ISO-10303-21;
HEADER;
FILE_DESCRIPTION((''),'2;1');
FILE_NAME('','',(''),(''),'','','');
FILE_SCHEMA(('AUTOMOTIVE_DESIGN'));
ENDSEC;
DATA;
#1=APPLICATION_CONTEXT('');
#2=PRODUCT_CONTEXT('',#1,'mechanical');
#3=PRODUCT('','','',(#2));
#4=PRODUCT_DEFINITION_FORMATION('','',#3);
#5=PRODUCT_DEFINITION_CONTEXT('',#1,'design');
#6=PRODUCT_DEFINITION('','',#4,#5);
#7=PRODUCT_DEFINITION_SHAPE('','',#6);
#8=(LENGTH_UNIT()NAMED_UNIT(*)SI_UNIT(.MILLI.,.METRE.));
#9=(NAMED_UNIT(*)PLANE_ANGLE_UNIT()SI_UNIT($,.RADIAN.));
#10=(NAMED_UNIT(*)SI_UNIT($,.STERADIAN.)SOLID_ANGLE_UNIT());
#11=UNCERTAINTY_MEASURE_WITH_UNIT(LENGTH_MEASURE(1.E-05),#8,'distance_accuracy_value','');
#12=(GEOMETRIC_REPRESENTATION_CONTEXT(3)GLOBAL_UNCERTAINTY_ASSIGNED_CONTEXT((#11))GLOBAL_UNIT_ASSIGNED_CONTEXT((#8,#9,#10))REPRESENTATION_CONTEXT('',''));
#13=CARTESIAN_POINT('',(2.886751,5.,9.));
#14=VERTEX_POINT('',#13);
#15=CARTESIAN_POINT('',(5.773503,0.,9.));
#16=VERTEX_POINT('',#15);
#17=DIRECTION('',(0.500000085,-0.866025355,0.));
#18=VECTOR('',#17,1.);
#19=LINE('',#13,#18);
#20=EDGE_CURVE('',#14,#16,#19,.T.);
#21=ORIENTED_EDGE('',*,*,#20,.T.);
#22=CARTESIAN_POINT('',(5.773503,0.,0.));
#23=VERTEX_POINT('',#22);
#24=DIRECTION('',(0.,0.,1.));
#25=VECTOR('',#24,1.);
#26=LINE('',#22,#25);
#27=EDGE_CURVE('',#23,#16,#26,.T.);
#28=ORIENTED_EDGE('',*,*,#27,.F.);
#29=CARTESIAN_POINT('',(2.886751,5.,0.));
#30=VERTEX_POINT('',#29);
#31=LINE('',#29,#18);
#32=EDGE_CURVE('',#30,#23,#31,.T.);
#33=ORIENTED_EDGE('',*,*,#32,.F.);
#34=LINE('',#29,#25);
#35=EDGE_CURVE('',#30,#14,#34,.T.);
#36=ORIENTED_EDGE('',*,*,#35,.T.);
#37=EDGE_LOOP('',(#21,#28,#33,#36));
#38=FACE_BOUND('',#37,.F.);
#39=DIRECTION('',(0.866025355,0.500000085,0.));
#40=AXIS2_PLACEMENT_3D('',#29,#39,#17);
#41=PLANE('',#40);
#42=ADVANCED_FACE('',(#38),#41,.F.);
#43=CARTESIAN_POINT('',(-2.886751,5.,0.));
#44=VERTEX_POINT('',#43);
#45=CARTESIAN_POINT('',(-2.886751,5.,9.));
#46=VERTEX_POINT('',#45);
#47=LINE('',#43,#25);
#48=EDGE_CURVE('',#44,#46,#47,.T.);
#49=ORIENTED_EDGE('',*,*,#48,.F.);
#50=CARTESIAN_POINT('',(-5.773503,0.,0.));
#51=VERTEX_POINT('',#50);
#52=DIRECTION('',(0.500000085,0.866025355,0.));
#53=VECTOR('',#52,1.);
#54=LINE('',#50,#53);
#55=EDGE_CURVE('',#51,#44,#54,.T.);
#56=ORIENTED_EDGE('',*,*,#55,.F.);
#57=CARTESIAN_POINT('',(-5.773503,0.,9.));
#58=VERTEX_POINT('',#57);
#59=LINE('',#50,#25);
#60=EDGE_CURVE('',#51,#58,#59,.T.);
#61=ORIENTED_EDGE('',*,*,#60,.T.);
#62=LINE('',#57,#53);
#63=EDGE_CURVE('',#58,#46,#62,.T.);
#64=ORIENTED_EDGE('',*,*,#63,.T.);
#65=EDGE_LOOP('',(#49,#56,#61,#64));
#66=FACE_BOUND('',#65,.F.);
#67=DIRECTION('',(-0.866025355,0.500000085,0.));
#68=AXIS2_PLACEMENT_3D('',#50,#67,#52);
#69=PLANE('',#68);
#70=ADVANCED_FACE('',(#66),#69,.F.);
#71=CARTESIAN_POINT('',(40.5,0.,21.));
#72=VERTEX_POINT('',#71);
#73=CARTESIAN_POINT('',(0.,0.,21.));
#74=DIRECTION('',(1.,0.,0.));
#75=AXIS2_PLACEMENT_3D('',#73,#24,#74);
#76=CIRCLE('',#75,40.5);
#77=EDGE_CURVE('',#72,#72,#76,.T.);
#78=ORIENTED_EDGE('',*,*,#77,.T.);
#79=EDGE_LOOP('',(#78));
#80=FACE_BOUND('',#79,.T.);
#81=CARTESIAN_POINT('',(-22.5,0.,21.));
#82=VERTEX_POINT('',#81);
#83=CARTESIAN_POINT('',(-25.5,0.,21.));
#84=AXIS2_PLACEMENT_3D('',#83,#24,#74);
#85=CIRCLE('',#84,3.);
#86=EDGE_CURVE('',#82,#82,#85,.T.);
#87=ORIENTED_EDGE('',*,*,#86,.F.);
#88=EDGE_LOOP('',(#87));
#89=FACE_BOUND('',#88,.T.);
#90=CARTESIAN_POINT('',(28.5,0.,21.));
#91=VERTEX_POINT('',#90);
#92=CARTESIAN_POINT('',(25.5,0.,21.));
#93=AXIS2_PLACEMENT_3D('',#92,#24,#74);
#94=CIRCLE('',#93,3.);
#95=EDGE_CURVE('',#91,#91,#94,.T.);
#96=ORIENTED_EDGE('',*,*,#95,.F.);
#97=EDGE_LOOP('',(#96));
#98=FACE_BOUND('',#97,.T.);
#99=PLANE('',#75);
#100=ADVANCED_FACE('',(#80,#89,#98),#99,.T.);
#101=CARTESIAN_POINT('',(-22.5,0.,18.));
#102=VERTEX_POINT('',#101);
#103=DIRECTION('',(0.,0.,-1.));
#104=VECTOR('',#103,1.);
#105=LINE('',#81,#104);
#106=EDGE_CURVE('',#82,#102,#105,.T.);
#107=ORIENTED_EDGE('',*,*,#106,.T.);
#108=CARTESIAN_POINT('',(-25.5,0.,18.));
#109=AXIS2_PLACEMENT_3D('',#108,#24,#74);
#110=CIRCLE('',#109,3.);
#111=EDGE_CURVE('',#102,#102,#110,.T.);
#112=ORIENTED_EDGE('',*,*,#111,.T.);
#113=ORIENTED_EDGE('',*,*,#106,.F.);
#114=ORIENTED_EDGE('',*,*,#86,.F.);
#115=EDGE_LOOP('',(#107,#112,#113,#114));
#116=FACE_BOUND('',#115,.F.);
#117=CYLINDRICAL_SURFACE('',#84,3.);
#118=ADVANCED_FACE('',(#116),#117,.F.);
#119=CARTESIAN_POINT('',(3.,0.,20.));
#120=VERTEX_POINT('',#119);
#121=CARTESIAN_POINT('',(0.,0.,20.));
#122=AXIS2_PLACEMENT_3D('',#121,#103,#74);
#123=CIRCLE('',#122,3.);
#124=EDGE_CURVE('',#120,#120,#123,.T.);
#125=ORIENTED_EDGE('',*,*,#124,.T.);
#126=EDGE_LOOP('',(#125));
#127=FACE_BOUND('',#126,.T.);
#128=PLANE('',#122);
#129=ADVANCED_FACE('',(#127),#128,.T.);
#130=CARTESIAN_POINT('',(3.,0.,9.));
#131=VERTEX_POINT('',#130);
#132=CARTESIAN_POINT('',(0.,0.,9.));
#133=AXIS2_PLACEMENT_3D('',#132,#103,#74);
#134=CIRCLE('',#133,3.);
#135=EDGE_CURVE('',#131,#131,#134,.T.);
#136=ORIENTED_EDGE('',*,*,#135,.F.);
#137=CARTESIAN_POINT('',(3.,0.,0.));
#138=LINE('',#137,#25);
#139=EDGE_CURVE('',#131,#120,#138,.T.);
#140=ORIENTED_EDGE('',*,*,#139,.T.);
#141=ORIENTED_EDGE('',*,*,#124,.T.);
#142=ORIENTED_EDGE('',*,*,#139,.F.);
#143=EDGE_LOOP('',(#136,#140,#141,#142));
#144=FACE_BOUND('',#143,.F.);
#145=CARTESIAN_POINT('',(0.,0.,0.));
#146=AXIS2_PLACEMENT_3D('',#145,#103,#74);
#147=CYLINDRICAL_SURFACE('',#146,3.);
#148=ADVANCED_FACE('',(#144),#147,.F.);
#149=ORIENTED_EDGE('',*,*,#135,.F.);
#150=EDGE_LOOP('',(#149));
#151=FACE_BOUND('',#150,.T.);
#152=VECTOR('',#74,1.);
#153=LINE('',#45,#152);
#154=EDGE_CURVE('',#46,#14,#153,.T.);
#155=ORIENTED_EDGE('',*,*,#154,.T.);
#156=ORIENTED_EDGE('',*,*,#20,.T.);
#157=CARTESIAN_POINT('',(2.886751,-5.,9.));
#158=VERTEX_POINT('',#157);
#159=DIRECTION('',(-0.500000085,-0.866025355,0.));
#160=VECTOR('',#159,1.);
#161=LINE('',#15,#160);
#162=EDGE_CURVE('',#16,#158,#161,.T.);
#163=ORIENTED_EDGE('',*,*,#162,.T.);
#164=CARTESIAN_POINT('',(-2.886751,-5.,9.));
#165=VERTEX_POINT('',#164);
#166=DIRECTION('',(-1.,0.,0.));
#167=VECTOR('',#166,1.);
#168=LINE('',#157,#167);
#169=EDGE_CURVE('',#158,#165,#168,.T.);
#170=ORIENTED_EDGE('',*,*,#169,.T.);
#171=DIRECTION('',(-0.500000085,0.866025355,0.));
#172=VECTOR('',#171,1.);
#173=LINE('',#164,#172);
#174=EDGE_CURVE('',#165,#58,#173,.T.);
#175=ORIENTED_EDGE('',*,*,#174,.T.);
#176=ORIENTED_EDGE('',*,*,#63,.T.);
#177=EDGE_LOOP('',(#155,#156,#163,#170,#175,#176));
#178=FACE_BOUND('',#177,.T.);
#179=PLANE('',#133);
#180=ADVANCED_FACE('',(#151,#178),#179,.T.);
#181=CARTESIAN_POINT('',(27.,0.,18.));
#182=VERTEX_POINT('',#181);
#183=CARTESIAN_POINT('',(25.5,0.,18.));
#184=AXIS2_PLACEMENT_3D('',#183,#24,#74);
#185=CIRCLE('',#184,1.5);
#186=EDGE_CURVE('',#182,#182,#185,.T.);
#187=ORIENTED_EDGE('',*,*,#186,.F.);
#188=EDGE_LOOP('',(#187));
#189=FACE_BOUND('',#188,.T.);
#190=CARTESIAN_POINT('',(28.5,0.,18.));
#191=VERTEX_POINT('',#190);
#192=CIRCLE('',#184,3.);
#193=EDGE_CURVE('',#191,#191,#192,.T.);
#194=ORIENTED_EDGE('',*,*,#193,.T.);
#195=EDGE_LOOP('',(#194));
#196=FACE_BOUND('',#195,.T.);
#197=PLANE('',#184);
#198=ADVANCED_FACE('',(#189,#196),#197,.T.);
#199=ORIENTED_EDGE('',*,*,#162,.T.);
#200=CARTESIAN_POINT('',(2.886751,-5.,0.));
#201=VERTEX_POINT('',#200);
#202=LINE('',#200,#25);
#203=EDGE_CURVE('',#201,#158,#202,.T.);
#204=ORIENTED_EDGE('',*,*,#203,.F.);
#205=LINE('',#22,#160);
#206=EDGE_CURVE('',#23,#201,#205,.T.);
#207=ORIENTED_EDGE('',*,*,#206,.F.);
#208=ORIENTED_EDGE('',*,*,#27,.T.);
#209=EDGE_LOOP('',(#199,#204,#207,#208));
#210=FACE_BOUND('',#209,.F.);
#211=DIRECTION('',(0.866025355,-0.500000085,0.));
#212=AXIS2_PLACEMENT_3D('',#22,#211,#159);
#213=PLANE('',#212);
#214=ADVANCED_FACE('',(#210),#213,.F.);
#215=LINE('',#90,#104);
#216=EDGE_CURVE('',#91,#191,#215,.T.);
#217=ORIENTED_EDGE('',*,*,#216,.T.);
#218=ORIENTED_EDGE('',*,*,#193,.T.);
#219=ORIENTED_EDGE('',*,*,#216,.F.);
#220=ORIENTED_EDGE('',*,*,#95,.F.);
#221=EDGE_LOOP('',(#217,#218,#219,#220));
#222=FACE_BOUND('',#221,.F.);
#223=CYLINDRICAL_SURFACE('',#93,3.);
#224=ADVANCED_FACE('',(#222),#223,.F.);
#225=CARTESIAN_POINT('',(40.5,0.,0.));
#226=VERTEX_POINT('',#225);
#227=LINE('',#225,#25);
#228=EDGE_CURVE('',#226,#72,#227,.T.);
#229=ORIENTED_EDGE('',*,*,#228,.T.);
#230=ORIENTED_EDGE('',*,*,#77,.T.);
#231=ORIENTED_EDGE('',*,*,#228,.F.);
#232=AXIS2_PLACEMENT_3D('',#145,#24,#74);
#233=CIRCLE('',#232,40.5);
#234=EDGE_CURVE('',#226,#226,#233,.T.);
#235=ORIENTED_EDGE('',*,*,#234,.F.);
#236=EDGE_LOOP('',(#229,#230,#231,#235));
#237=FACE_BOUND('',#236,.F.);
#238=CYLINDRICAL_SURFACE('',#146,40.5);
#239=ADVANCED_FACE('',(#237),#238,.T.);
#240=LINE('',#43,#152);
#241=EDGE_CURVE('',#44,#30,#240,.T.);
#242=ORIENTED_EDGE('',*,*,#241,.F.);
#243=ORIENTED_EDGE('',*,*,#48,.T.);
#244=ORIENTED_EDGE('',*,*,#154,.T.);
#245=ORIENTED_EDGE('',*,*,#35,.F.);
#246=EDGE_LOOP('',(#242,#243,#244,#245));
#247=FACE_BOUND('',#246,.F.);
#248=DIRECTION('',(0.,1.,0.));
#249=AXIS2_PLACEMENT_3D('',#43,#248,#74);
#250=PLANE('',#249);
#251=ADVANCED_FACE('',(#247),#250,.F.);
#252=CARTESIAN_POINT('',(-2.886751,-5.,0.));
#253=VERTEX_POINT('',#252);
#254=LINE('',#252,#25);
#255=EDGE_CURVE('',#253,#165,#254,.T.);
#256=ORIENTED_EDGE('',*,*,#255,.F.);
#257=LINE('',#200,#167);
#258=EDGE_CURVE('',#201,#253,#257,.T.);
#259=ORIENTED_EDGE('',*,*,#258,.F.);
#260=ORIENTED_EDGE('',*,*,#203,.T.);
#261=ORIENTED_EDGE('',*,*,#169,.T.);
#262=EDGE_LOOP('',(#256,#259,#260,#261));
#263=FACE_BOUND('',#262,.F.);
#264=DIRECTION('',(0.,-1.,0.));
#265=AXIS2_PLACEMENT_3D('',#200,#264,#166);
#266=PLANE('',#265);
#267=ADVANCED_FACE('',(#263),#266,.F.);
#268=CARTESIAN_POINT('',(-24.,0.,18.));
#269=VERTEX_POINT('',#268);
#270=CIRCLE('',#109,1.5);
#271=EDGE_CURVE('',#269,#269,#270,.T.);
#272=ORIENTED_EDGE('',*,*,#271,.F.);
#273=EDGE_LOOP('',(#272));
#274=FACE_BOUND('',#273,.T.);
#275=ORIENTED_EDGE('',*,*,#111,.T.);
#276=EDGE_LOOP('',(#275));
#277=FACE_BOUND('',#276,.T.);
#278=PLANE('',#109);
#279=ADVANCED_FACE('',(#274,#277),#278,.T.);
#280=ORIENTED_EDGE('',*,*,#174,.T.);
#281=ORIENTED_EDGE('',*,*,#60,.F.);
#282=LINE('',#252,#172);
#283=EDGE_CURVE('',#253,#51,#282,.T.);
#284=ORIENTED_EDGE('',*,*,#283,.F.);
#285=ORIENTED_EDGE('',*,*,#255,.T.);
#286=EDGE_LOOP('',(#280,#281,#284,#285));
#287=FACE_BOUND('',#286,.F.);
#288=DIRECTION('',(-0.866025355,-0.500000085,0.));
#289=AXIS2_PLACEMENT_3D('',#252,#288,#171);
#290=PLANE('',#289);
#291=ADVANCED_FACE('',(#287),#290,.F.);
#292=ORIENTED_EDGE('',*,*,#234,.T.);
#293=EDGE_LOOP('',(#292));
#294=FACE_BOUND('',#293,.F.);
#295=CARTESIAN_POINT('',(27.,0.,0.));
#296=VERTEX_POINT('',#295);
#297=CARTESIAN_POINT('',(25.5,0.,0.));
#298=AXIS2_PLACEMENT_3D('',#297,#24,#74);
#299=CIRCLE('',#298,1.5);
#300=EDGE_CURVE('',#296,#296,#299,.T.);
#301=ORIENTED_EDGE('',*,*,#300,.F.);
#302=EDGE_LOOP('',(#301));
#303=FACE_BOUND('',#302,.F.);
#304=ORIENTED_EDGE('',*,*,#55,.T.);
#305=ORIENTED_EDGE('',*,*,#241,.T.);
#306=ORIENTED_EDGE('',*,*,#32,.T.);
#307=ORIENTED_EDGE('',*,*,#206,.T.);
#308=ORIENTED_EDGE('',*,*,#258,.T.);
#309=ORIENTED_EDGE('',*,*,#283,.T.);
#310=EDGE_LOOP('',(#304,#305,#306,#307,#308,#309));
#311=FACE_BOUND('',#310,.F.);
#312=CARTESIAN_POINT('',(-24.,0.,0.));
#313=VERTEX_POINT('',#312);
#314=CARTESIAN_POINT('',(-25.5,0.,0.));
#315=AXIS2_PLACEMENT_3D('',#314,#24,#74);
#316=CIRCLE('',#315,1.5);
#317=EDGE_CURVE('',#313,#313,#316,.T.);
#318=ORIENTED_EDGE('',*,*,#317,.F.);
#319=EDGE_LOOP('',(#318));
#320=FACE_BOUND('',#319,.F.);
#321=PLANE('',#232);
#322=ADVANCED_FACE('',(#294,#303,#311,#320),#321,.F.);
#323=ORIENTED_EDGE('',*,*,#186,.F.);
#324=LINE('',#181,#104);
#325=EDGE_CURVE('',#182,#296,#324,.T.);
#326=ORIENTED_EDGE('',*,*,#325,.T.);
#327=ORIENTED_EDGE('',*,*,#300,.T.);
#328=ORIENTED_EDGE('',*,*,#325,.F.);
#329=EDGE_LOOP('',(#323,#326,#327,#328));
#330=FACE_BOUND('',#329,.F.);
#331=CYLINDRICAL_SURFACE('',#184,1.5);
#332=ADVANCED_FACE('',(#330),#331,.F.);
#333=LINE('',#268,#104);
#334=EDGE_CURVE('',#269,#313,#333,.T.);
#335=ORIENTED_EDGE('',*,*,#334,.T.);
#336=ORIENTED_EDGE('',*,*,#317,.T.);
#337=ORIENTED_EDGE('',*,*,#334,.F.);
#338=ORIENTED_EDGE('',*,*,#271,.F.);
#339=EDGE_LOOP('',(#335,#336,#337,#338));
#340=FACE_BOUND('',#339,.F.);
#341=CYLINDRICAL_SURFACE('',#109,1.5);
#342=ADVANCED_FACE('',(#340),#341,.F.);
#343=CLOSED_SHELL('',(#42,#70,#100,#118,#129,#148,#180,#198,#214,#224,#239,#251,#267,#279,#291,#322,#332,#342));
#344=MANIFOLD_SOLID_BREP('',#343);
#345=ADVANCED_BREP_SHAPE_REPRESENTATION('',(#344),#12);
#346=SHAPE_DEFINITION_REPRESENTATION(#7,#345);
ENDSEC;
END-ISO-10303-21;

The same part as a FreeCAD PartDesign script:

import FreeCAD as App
import Part
import Sketcher

V = App.Vector
Q = App.Units.Quantity

doc = App.newDocument("Part")
body = doc.addObject("PartDesign::Body", "Body")

# Sketch on XY plane
sketch1 = body.newObject("Sketcher::SketchObject", "Sketch")
sketch1.AttachmentSupport = (doc.getObject("XY_Plane"), [""])
sketch1.MapMode = "FlatFace"
sketch1.addGeometry(Part.Circle(V(0, 0, 0), V(0, 0, 1), 40), False)
sketch1.addConstraint(Sketcher.Constraint("Coincident", 0, 3, -1, 1))
sketch1.addConstraint(Sketcher.Constraint("Diameter", 0, 81.0))
pad1 = body.newObject("PartDesign::Pad", "Pad")
pad1.Profile = sketch1
pad1.Length = 21

# Sketch on XY plane
sketch2 = body.newObject("Sketcher::SketchObject", "Sketch001")
sketch2.AttachmentSupport = (doc.getObject("XY_Plane"), [""])
sketch2.MapMode = "FlatFace"
sketch2.AttachmentOffset = App.Placement(V(0, 0, 21), App.Rotation())
sketch2.addGeometry(Part.Circle(V(-25.5, 0, 0), V(0, 0, 1), 3), False)
sketch2.addGeometry(Part.Circle(V(25.5, 0, 0), V(0, 0, 1), 3), False)
sketch2.addConstraint(Sketcher.Constraint("Equal", 0, 1))
sketch2.addConstraint(Sketcher.Constraint("Symmetric", 0, 3, 1, 3, -1, 1))
sketch2.addConstraint(Sketcher.Constraint("PointOnObject", 0, 3, -1))
sketch2.addConstraint(Sketcher.Constraint("Diameter", 0, 6.0))
sketch2.addConstraint(Sketcher.Constraint("DistanceX", 0, 3, 1, 3, 51.0))
pocket1 = body.newObject("PartDesign::Pocket", "Pocket")
pocket1.Profile = sketch2
pocket1.Length = 3

# Sketch on XY plane
sketch3 = body.newObject("Sketcher::SketchObject", "Sketch002")
sketch3.AttachmentSupport = (doc.getObject("XY_Plane"), [""])
sketch3.MapMode = "FlatFace"
sketch3.AttachmentOffset = App.Placement(V(0, 0, 18), App.Rotation())
sketch3.addGeometry(Part.Circle(V(-25.5, 0, 0), V(0, 0, 1), 1.5), False)
sketch3.addGeometry(Part.Circle(V(25.5, 0, 0), V(0, 0, 1), 1.5), False)
sketch3.addConstraint(Sketcher.Constraint("Equal", 0, 1))
sketch3.addConstraint(Sketcher.Constraint("Symmetric", 0, 3, 1, 3, -1, 1))
sketch3.addConstraint(Sketcher.Constraint("PointOnObject", 0, 3, -1))
sketch3.addConstraint(Sketcher.Constraint("Diameter", 0, 3.0))
sketch3.addConstraint(Sketcher.Constraint("DistanceX", 0, 3, 1, 3, 51.0))
pocket2 = body.newObject("PartDesign::Pocket", "Pocket001")
pocket2.Profile = sketch3
pocket2.Length = 25

# Sketch on XY plane
sketch4 = body.newObject("Sketcher::SketchObject", "Sketch003")
sketch4.AttachmentSupport = (doc.getObject("XY_Plane"), [""])
sketch4.MapMode = "FlatFace"
sketch4.addGeometry(Part.LineSegment(V(3, -5, 0), V(-3, -5, 0)), False)
sketch4.addGeometry(Part.LineSegment(V(-3, -5, 0), V(-6, 0, 0)), False)
sketch4.addGeometry(Part.LineSegment(V(-6, 0, 0), V(-3, 5, 0)), False)
sketch4.addGeometry(Part.LineSegment(V(-3, 5, 0), V(3, 5, 0)), False)
sketch4.addGeometry(Part.LineSegment(V(3, 5, 0), V(6, 0, 0)), False)
sketch4.addGeometry(Part.LineSegment(V(6, 0, 0), V(3, -5, 0)), False)
sketch4.addConstraint(Sketcher.Constraint("Coincident", 0, 2, 1, 1))
sketch4.addConstraint(Sketcher.Constraint("Coincident", 1, 2, 2, 1))
sketch4.addConstraint(Sketcher.Constraint("Coincident", 2, 2, 3, 1))
sketch4.addConstraint(Sketcher.Constraint("Coincident", 3, 2, 4, 1))
sketch4.addConstraint(Sketcher.Constraint("Coincident", 4, 2, 5, 1))
sketch4.addConstraint(Sketcher.Constraint("Coincident", 5, 2, 0, 1))
sketch4.addConstraint(Sketcher.Constraint("Horizontal", 0))
sketch4.addConstraint(Sketcher.Constraint("Horizontal", 3))
sketch4.addConstraint(Sketcher.Constraint("Symmetric", 0, 2, 3, 2, -1, 1))
sketch4.addConstraint(Sketcher.Constraint("Symmetric", 1, 2, 4, 2, -1, 1))
sketch4.addConstraint(Sketcher.Constraint("PointOnObject", 1, 2, -1))
sketch4.addConstraint(Sketcher.Constraint("Parallel", 2, 5))
sketch4.addConstraint(Sketcher.Constraint("Vertical", 0, 2, 2, 2))
sketch4.addConstraint(Sketcher.Constraint("Angle", 1, Q("120.000006 deg")))
sketch4.addConstraint(Sketcher.Constraint("DistanceY", 0, 2, -1, 1, 5.0))
sketch4.addConstraint(Sketcher.Constraint("DistanceX", 0, 2, 0, 1, 5.773502))
pocket3 = body.newObject("PartDesign::Pocket", "Pocket002")
pocket3.Profile = sketch4
pocket3.Length = 9
pocket3.Reversed = True

# Sketch on XY plane
sketch5 = body.newObject("Sketcher::SketchObject", "Sketch004")
sketch5.AttachmentSupport = (doc.getObject("XY_Plane"), [""])
sketch5.MapMode = "FlatFace"
sketch5.addGeometry(Part.Circle(V(0, 0, 0), V(0, 0, 1), 3), False)
sketch5.addConstraint(Sketcher.Constraint("Coincident", 0, 3, -1, 1))
sketch5.addConstraint(Sketcher.Constraint("Diameter", 0, 6.0))
pocket4 = body.newObject("PartDesign::Pocket", "Pocket003")
pocket4.Profile = sketch5
pocket4.Length = 20
pocket4.Reversed = True

doc.recompute()
